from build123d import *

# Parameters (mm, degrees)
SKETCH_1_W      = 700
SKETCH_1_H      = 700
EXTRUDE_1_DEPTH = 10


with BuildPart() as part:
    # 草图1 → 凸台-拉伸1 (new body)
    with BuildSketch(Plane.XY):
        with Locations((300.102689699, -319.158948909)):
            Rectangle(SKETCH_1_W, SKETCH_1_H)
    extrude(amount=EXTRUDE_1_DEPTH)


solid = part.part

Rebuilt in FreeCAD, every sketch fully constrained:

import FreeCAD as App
import Part
import Sketcher
from FreeCAD import Vector

doc = App.newDocument("Part")
params = doc.addObject("Spreadsheet::Sheet", "Params")
for row, (alias, value) in enumerate([
    ("sketch1_width", "700 mm"),
    ("pad1_length", "10 mm"),
], start=1):
    params.set(f"A{row}", alias)
    params.set(f"B{row}", "=" + value)
    params.setAlias(f"B{row}", alias)

body = doc.addObject("PartDesign::Body", "Body")

# Sketch on XY plane
sketch1 = body.newObject("Sketcher::SketchObject", "Sketch")
sketch1.AttachmentSupport = (doc.getObject("XY_Plane"), [""])
sketch1.MapMode = "FlatFace"
sketch1.addGeometry([
    Part.LineSegment(Vector(-49.89731, 30.841051, 0), Vector(-49.89731, -669.158949, 0)),
    Part.LineSegment(Vector(-49.89731, -669.158949, 0), Vector(650.10269, -669.158949, 0)),
    Part.LineSegment(Vector(650.10269, -669.158949, 0), Vector(650.10269, 30.841051, 0)),
    Part.LineSegment(Vector(650.10269, 30.841051, 0), Vector(-49.89731, 30.841051, 0)),
], False)
sketch1.addConstraint([
    Sketcher.Constraint("Coincident", 0, 2, 1, 1),
    Sketcher.Constraint("Coincident", 1, 2, 2, 1),
    Sketcher.Constraint("Coincident", 2, 2, 3, 1),
    Sketcher.Constraint("Coincident", 3, 2, 0, 1),
    Sketcher.Constraint("Vertical", 0),
    Sketcher.Constraint("Horizontal", 1),
    Sketcher.Constraint("Vertical", 2),
    Sketcher.Constraint("Horizontal", 3),
    Sketcher.Constraint("Equal", 3, 0),
    Sketcher.Constraint("DistanceX", 1, 1, 1, 2, 700.0),
    Sketcher.Constraint("DistanceX", 0, 2, -1, 1, 49.89731),
    Sketcher.Constraint("DistanceY", 0, 2, -1, 1, 669.158949),
])
sketch1.setExpression("Constraints[9]", "Params.sketch1_width")
pad1 = body.newObject("PartDesign::Pad", "Pad")
pad1.Profile = sketch1
pad1.setExpression("Length", "Params.pad1_length")

doc.recompute()
